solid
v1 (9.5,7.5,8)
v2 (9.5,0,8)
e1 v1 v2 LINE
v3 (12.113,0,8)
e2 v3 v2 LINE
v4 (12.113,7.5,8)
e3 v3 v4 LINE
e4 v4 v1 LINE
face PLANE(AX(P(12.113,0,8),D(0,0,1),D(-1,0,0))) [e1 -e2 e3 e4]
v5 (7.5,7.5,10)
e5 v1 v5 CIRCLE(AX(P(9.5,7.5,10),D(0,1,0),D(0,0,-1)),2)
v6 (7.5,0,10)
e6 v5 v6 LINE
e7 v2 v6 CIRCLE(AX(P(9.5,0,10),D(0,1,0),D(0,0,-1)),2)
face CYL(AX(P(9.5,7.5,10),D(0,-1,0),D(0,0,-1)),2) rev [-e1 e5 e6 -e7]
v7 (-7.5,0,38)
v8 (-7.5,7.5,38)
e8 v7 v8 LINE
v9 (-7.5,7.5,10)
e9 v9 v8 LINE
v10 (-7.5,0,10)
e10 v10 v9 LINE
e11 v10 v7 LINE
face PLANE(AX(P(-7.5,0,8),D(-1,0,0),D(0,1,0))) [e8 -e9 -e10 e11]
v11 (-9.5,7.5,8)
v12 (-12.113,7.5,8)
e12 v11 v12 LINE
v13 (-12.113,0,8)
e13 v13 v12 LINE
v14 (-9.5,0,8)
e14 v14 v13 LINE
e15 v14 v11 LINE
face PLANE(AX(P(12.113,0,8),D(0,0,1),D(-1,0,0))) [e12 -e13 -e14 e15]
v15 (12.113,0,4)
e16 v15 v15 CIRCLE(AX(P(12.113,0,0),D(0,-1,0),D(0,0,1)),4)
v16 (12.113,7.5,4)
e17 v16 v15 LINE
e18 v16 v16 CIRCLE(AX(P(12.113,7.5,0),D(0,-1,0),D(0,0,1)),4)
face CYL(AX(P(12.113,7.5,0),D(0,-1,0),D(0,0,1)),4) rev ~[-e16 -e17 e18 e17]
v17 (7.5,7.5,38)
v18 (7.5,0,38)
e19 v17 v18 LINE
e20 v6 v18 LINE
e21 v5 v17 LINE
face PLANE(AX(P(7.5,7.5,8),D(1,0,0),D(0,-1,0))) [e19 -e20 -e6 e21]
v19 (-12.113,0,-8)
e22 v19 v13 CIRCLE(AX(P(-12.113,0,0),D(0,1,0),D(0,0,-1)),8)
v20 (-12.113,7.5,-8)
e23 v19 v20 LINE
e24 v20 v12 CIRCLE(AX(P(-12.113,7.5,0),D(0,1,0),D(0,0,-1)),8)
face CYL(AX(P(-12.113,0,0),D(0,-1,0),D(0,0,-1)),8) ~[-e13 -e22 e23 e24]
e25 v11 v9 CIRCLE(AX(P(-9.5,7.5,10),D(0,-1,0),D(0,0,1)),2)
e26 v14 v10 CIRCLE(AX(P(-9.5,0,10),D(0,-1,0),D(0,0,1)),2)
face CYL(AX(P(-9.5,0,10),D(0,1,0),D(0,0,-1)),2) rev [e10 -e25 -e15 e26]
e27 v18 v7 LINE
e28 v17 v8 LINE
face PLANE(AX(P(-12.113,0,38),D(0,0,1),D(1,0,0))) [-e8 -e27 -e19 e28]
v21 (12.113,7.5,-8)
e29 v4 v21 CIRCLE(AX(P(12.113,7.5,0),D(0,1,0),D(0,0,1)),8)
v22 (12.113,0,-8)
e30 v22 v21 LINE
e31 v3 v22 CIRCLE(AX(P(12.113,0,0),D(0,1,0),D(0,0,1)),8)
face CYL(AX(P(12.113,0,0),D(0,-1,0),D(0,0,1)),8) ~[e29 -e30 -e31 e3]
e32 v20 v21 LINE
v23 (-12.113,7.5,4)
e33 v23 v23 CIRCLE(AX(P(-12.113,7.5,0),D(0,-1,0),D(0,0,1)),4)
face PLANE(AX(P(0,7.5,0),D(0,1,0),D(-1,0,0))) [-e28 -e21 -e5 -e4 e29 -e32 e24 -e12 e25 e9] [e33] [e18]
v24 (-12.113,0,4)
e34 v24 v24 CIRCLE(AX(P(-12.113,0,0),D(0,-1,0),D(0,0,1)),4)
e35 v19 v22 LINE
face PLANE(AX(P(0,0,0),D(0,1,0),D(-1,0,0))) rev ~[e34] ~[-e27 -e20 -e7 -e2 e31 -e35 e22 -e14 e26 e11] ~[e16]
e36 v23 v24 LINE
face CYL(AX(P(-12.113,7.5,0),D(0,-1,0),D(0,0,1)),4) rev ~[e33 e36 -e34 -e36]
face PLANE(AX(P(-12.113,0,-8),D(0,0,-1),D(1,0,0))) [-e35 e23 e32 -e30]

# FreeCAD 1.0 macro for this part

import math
import FreeCAD as App
import Part
import Sketcher


def edges_at(feature, points):
    """Names of the edges that pass closest to the given points."""
    edges = feature.Shape.Edges
    near = lambda p: min(range(len(edges)), key=lambda i: edges[i].distToShape(Part.Vertex(*p))[0])
    return sorted({f"Edge{near(p) + 1}" for p in points})


def add_polygon(sketch, points):
    """Adds a closed chain of lines whose ends are joined by coincident constraints."""
    first, n = sketch.GeometryCount, len(points)
    for a, b in zip(points, points[1:] + points[:1]):
        sketch.addGeometry(Part.LineSegment(App.Vector(*a, 0), App.Vector(*b, 0)), False)
    for i in range(n):
        sketch.addConstraint(Sketcher.Constraint("Coincident", first + i, 2, first + (i + 1) % n, 1))

doc = App.newDocument("Part")
body = doc.addObject("PartDesign::Body", "Body")

sketch1 = body.newObject("Sketcher::SketchObject", "Sketch")
sketch1.AttachmentSupport = (doc.getObject("XZ_Plane"), [""])
sketch1.MapMode = "FlatFace"
sketch1.addGeometry(Part.LineSegment(App.Vector(12, -8, 0), App.Vector(-12, -8, 0)), False)
sketch1.addGeometry(Part.ArcOfCircle(Part.Circle(App.Vector(-12, 0, 0), App.Vector(0, 0, 1), 8), math.radians(90), math.radians(270)), False)
sketch1.addGeometry(Part.LineSegment(App.Vector(-12, 8, 0), App.Vector(12, 8, 0)), False)
sketch1.addGeometry(Part.ArcOfCircle(Part.Circle(App.Vector(12, 0, 0), App.Vector(0, 0, 1), 8), math.radians(-90), math.radians(90)), False)
sketch1.addConstraint(Sketcher.Constraint("Tangent", 0, 2, 1, 2))
sketch1.addConstraint(Sketcher.Constraint("Tangent", 1, 1, 2, 1))
sketch1.addConstraint(Sketcher.Constraint("Tangent", 2, 2, 3, 2))
sketch1.addConstraint(Sketcher.Constraint("Tangent", 3, 1, 0, 1))
sketch1.addConstraint(Sketcher.Constraint("Horizontal", 0))
sketch1.addConstraint(Sketcher.Constraint("Horizontal", 2))
sketch1.addConstraint(Sketcher.Constraint("Symmetric", 1, 3, 3, 3, -1, 1))
sketch1.addConstraint(Sketcher.Constraint("Radius", 1, 8.0))
sketch1.addConstraint(Sketcher.Constraint("DistanceX", 0, 2, 0, 1, 24.226))
pad1 = body.newObject("PartDesign::Pad", "Pad")
pad1.Profile = sketch1
pad1.Length = 7.5
pad1.Reversed = True

sketch2 = body.newObject("Sketcher::SketchObject", "Sketch001")
sketch2.AttachmentSupport = (doc.getObject("XZ_Plane"), [""])
sketch2.MapMode = "FlatFace"
sketch2.AttachmentOffset = App.Placement(App.Vector(0, 0, -7.5), App.Rotation())
sketch2.addGeometry(Part.Circle(App.Vector(12.1, 0, 0), App.Vector(0, 0, 1), 4), False)
sketch2.addGeometry(Part.Circle(App.Vector(-12.1, 0, 0), App.Vector(0, 0, 1), 4), False)
sketch2.addConstraint(Sketcher.Constraint("Equal", 0, 1))
sketch2.addConstraint(Sketcher.Constraint("Symmetric", 0, 3, 1, 3, -1, 1))
sketch2.addConstraint(Sketcher.Constraint("PointOnObject", 0, 3, -1))
sketch2.addConstraint(Sketcher.Constraint("Diameter", 0, 8.0))
sketch2.addConstraint(Sketcher.Constraint("DistanceX", -1, 1, 0, 3, 12.113))
doc.recompute()
hole = body.newObject("PartDesign::Hole", "Hole")
hole.Profile = sketch2
hole.ThreadType = "None"
hole.Diameter = 8
hole.DepthType = "ThroughAll"
hole.Reversed = True

sketch3 = body.newObject("Sketcher::SketchObject", "Sketch002")
sketch3.AttachmentSupport = (doc.getObject("XY_Plane"), [""])
sketch3.MapMode = "FlatFace"
sketch3.AttachmentOffset = App.Placement(App.Vector(0, 0, 8), App.Rotation())
add_polygon(sketch3, [(8, 0), (8, 8), (-8, 8), (-8, 0)])
sketch3.addConstraint(Sketcher.Constraint("Vertical", 0))
sketch3.addConstraint(Sketcher.Constraint("Horizontal", 1))
sketch3.addConstraint(Sketcher.Constraint("Vertical", 2))
sketch3.addConstraint(Sketcher.Constraint("Horizontal", 3))
sketch3.addConstraint(Sketcher.Constraint("Symmetric", 2, 2, 3, 2, -1, 1))
sketch3.addConstraint(Sketcher.Constraint("DistanceX", 1, 2, 1, 1, 15.0))
sketch3.addConstraint(Sketcher.Constraint("DistanceY", 0, 1, 0, 2, 7.5))
pad2 = body.newObject("PartDesign::Pad", "Pad001")
pad2.Profile = sketch3
pad2.Length = 30
doc.recompute()

fillet = body.newObject("PartDesign::Fillet", "Fillet")
fillet.Base = (pad2, edges_at(pad2, [(-7.5, 3.75, 8), (7.5, 3.75, 8)]))
fillet.Radius = 2

doc.recompute()
